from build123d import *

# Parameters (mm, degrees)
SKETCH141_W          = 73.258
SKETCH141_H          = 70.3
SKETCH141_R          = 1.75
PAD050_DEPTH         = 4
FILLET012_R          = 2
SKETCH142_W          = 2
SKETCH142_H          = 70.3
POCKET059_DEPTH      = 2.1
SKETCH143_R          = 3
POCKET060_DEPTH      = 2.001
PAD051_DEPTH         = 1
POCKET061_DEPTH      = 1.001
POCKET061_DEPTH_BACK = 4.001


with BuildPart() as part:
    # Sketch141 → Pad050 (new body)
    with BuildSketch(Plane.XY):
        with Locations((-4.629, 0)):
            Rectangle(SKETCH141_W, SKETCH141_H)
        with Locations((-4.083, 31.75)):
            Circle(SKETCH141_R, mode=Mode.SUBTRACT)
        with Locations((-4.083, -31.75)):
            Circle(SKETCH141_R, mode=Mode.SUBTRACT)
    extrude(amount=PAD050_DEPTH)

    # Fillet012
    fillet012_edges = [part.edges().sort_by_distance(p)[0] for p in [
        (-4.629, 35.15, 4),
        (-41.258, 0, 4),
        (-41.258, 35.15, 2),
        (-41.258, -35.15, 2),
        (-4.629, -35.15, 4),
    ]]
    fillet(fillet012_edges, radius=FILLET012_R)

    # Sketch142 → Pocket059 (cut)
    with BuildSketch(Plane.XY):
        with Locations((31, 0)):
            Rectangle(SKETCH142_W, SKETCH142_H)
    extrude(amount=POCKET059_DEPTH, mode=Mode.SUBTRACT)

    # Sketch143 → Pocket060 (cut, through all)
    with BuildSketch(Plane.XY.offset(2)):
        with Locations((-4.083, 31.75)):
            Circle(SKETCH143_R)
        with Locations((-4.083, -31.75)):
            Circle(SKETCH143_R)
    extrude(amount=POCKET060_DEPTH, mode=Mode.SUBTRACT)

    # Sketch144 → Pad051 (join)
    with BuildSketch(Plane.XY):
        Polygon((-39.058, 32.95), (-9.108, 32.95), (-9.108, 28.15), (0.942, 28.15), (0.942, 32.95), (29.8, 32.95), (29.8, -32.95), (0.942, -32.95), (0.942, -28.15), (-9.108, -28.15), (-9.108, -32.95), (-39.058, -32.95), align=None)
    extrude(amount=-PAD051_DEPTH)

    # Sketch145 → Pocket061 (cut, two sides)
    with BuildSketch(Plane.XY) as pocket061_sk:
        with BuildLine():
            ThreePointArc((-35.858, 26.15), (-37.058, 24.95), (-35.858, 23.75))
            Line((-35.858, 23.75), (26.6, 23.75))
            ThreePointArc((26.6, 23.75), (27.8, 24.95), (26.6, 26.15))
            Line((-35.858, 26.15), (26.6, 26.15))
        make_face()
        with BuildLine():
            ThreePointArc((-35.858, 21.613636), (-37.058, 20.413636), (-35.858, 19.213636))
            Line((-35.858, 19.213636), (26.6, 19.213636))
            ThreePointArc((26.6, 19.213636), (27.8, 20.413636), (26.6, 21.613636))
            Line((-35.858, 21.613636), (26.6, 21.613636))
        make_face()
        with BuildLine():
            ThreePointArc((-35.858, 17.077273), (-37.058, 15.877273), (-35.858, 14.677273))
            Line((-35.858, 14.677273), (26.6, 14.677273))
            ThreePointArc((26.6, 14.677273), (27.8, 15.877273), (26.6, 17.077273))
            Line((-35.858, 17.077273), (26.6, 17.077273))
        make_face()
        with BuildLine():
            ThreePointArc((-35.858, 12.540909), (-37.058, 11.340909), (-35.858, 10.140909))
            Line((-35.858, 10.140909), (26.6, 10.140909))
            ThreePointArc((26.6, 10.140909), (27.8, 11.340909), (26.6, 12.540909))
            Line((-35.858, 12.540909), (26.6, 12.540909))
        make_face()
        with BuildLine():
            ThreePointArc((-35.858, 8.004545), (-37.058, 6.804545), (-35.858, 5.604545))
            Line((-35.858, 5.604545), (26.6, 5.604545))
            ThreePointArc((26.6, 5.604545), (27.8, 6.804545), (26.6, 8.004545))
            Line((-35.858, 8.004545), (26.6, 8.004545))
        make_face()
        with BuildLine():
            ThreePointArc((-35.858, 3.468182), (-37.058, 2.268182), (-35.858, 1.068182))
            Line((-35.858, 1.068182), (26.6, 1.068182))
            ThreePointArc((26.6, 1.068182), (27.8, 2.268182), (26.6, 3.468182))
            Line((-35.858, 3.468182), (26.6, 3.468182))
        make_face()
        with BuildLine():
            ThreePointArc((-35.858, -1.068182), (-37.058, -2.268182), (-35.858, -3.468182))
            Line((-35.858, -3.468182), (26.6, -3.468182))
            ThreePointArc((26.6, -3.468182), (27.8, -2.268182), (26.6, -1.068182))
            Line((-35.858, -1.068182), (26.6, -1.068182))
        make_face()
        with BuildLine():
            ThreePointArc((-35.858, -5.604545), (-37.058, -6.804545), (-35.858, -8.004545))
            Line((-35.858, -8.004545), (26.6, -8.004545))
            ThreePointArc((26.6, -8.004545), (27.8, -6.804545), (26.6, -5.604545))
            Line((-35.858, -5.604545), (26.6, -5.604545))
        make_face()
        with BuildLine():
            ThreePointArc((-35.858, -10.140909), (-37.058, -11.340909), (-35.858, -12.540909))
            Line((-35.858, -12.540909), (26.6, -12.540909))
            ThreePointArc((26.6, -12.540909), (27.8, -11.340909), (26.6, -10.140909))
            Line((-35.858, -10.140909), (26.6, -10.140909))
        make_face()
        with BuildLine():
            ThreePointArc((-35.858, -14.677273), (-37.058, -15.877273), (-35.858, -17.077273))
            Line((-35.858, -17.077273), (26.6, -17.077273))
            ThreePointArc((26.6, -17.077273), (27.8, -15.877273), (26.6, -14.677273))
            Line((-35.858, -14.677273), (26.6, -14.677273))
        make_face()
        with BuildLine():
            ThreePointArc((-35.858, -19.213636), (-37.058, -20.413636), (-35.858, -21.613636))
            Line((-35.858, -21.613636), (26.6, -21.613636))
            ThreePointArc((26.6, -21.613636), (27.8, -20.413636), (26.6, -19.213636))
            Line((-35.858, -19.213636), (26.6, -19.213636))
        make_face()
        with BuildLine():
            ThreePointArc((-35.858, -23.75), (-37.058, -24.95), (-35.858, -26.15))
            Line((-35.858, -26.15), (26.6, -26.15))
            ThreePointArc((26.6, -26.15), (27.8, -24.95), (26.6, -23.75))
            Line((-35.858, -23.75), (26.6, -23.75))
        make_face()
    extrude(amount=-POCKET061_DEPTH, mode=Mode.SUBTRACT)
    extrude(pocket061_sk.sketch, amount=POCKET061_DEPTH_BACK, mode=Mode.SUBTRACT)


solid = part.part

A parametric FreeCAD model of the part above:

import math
import FreeCAD as App
import Part
import Sketcher


def edges_at(feature, points):
    """Names of the edges that pass closest to the given points."""
    edges = feature.Shape.Edges
    near = lambda p: min(range(len(edges)), key=lambda i: edges[i].distToShape(Part.Vertex(*p))[0])
    return sorted({f"Edge{near(p) + 1}" for p in points})

doc = App.newDocument("Part")
body = doc.addObject("PartDesign::Body", "Body")

sketch1 = doc.addObject("Sketcher::SketchObject", "Sketch")
body.addObject(sketch1)
sketch1.AttachmentSupport = (doc.XY_Plane, [""])
sketch1.MapMode = "FlatFace"
sketch1.addGeometry([
    Part.LineSegment(App.Vector(-41.3, 35.1, 0), App.Vector(-41.3, -35.1, 0)),
    Part.LineSegment(App.Vector(-41.3, -35.1, 0), App.Vector(32, -35.1, 0)),
    Part.LineSegment(App.Vector(32, -35.1, 0), App.Vector(32, 35.1, 0)),
    Part.LineSegment(App.Vector(32, 35.1, 0), App.Vector(-41.3, 35.1, 0)),
    Part.Circle(App.Vector(-4.1, -31.8, 0), App.Vector(0, 0, 1), 1.8),
    Part.Circle(App.Vector(-4.1, 31.8, 0), App.Vector(0, 0, 1), 1.8),
], False)
sketch1.addConstraint([
    Sketcher.Constraint("Coincident", 0, 2, 1, 1),
    Sketcher.Constraint("Coincident", 1, 2, 2, 1),
    Sketcher.Constraint("Coincident", 2, 2, 3, 1),
    Sketcher.Constraint("Coincident", 3, 2, 0, 1),
    Sketcher.Constraint("Vertical", 0),
    Sketcher.Constraint("Horizontal", 1),
    Sketcher.Constraint("Vertical", 2),
    Sketcher.Constraint("Horizontal", 3),
    Sketcher.Constraint("Equal", 4, 5),
    Sketcher.Constraint("Symmetric", 4, 3, 5, 3, -1),
    Sketcher.Constraint("Diameter", 4, 3.5),
    Sketcher.Constraint("DistanceY", 0, 2, 0, 1, 70.3),
    Sketcher.Constraint("DistanceX", -1, 1, 1, 2, 32.0),
    Sketcher.Constraint("DistanceY", 4, 3, 5, 3, 63.5),
    Sketcher.Constraint("DistanceY", 0, 2, 4, 3, 3.4),
    Sketcher.Constraint("DistanceX", 1, 1, 1, 2, 73.258),
    Sketcher.Constraint("DistanceX", 4, 3, -1, 1, 4.083),
])
pad1 = doc.addObject("PartDesign::Pad", "Pad")
body.addObject(pad1)
pad1.Profile = sketch1
pad1.Length = 4
doc.recompute()

fillet = doc.addObject("PartDesign::Fillet", "Fillet")
body.addObject(fillet)
fillet.Base = (pad1, edges_at(pad1, [
    (-4.629, 35.15, 4),
    (-41.258, 0, 4),
    (-41.258, 35.15, 2),
    (-41.258, -35.15, 2),
    (-4.629, -35.15, 4),
]))
fillet.Radius = 2

sketch2 = doc.addObject("Sketcher::SketchObject", "Sketch001")
body.addObject(sketch2)
sketch2.AttachmentSupport = (doc.XY_Plane, [""])
sketch2.MapMode = "FlatFace"
sketch2.addGeometry([
    Part.LineSegment(App.Vector(30, 35.1, 0), App.Vector(30, -35.1, 0)),
    Part.LineSegment(App.Vector(30, -35.1, 0), App.Vector(32, -35.1, 0)),
    Part.LineSegment(App.Vector(32, -35.1, 0), App.Vector(32, 35.1, 0)),
    Part.LineSegment(App.Vector(32, 35.1, 0), App.Vector(30, 35.1, 0)),
], False)
sketch2.addConstraint([
    Sketcher.Constraint("Coincident", 0, 2, 1, 1),
    Sketcher.Constraint("Coincident", 1, 2, 2, 1),
    Sketcher.Constraint("Coincident", 2, 2, 3, 1),
    Sketcher.Constraint("Coincident", 3, 2, 0, 1),
    Sketcher.Constraint("Vertical", 0),
    Sketcher.Constraint("Horizontal", 1),
    Sketcher.Constraint("Vertical", 2),
    Sketcher.Constraint("Horizontal", 3),
    Sketcher.Constraint("DistanceX", 1, 1, 1, 2, 2.0),
    Sketcher.Constraint("DistanceY", 0, 2, 0, 1, 70.3),
    Sketcher.Constraint("DistanceX", -1, 1, 0, 2, 30.0),
    Sketcher.Constraint("DistanceY", 0, 2, -1, 1, 35.15),
])
pocket1 = doc.addObject("PartDesign::Pocket", "Pocket")
body.addObject(pocket1)
pocket1.Profile = sketch2
pocket1.Length = 2.1
pocket1.Reversed = True

sketch3 = doc.addObject("Sketcher::SketchObject", "Sketch002")
body.addObject(sketch3)
sketch3.AttachmentSupport = (doc.XY_Plane, [""])
sketch3.MapMode = "FlatFace"
sketch3.AttachmentOffset = App.Placement(App.Vector(0, 0, 2), App.Rotation())
sketch3.addGeometry([
    Part.Circle(App.Vector(-4.1, 31.8, 0), App.Vector(0, 0, 1), 3),
    Part.Circle(App.Vector(-4.1, -31.8, 0), App.Vector(0, 0, 1), 3),
], False)
sketch3.addConstraint([
    Sketcher.Constraint("Equal", 0, 1),
    Sketcher.Constraint("Symmetric", 0, 3, 1, 3, -1),
    Sketcher.Constraint("Diameter", 0, 6.0),
    Sketcher.Constraint("DistanceY", 1, 3, 0, 3, 63.5),
    Sketcher.Constraint("DistanceX", 0, 3, -1, 1, 4.083),
])
pocket2 = doc.addObject("PartDesign::Pocket", "Pocket001")
body.addObject(pocket2)
pocket2.Profile = sketch3
pocket2.Type = "ThroughAll"
pocket2.Reversed = True

sketch4 = doc.addObject("Sketcher::SketchObject", "Sketch003")
body.addObject(sketch4)
sketch4.AttachmentSupport = (doc.XY_Plane, [""])
sketch4.MapMode = "FlatFace"
sketch4.addGeometry([
    Part.LineSegment(App.Vector(-9.1, 33, 0), App.Vector(-39.1, 33, 0)),
    Part.LineSegment(App.Vector(-39.1, 33, 0), App.Vector(-39.1, -33, 0)),
    Part.LineSegment(App.Vector(-39.1, -33, 0), App.Vector(-9.1, -33, 0)),
    Part.LineSegment(App.Vector(-9.1, -33, 0), App.Vector(-9.1, -28.1, 0)),
    Part.LineSegment(App.Vector(-9.1, -28.1, 0), App.Vector(0.9, -28.1, 0)),
    Part.LineSegment(App.Vector(0.9, -28.1, 0), App.Vector(0.9, -33, 0)),
    Part.LineSegment(App.Vector(0.9, -33, 0), App.Vector(29.8, -33, 0)),
    Part.LineSegment(App.Vector(29.8, -33, 0), App.Vector(29.8, 33, 0)),
    Part.LineSegment(App.Vector(29.8, 33, 0), App.Vector(0.9, 33, 0)),
    Part.LineSegment(App.Vector(0.9, 33, 0), App.Vector(0.9, 28.1, 0)),
    Part.LineSegment(App.Vector(0.9, 28.1, 0), App.Vector(-9.1, 28.1, 0)),
    Part.LineSegment(App.Vector(-9.1, 28.1, 0), App.Vector(-9.1, 33, 0)),
], False)
sketch4.addConstraint([
    Sketcher.Constraint("Coincident", 0, 2, 1, 1),
    Sketcher.Constraint("Coincident", 1, 2, 2, 1),
    Sketcher.Constraint("Coincident", 2, 2, 3, 1),
    Sketcher.Constraint("Coincident", 3, 2, 4, 1),
    Sketcher.Constraint("Coincident", 4, 2, 5, 1),
    Sketcher.Constraint("Coincident", 5, 2, 6, 1),
    Sketcher.Constraint("Coincident", 6, 2, 7, 1),
    Sketcher.Constraint("Coincident", 7, 2, 8, 1),
    Sketcher.Constraint("Coincident", 8, 2, 9, 1),
    Sketcher.Constraint("Coincident", 9, 2, 10, 1),
    Sketcher.Constraint("Coincident", 10, 2, 11, 1),
    Sketcher.Constraint("Coincident", 11, 2, 0, 1),
    Sketcher.Constraint("Horizontal", 0),
    Sketcher.Constraint("Vertical", 1),
    Sketcher.Constraint("Horizontal", 2),
    Sketcher.Constraint("Vertical", 3),
    Sketcher.Constraint("Horizontal", 4),
    Sketcher.Constraint("Vertical", 5),
    Sketcher.Constraint("Horizontal", 6),
    Sketcher.Constraint("Vertical", 7),
    Sketcher.Constraint("Horizontal", 8),
    Sketcher.Constraint("Vertical", 9),
    Sketcher.Constraint("Horizontal", 10),
    Sketcher.Constraint("Vertical", 11),
    Sketcher.Constraint("Symmetric", 5, 2, 8, 2, -1),
    Sketcher.Constraint("Symmetric", 3, 2, 10, 2, -1),
    Sketcher.Constraint("Horizontal", 2, 2, 5, 2),
    Sketcher.Constraint("Horizontal", 0, 2, 7, 2),
    Sketcher.Constraint("DistanceY", 1, 2, 1, 1, 65.9),
    Sketcher.Constraint("DistanceY", 3, 1, 3, 2, 4.8),
    Sketcher.Constraint("DistanceX", 1, 2, 4, 2, 40.0),
    Sketcher.Constraint("DistanceX", 0, 2, 0, 1, 29.95),
    Sketcher.Constraint("DistanceX", -1, 1, 6, 2, 29.8),
    Sketcher.Constraint("DistanceX", 6, 1, 6, 2, 28.858),
])
pad2 = doc.addObject("PartDesign::Pad", "Pad001")
body.addObject(pad2)
pad2.Profile = sketch4
pad2.Length = 1
pad2.Reversed = True

sketch5 = doc.addObject("Sketcher::SketchObject", "Sketch004")
body.addObject(sketch5)
sketch5.AttachmentSupport = (doc.XY_Plane, [""])
sketch5.MapMode = "FlatFace"
sketch5.addGeometry([
    Part.ArcOfCircle(Part.Circle(App.Vector(-35.9, 24.9, 0), App.Vector(0, 0, 1), 1.2), math.radians(90), math.radians(270)),
    Part.LineSegment(App.Vector(-35.9, 23.8, 0), App.Vector(26.6, 23.8, 0)),
    Part.ArcOfCircle(Part.Circle(App.Vector(26.6, 24.9, 0), App.Vector(0, 0, 1), 1.2), math.radians(-90), math.radians(90)),
    Part.LineSegment(App.Vector(26.6, 26.1, 0), App.Vector(-35.9, 26.1, 0)),
    Part.ArcOfCircle(Part.Circle(App.Vector(-35.9, 20.4, 0), App.Vector(0, 0, 1), 1.2), math.radians(90), math.radians(270)),
    Part.LineSegment(App.Vector(-35.9, 19.2, 0), App.Vector(26.6, 19.2, 0)),
    Part.ArcOfCircle(Part.Circle(App.Vector(26.6, 20.4, 0), App.Vector(0, 0, 1), 1.2), math.radians(-90), math.radians(90)),
    Part.LineSegment(App.Vector(26.6, 21.6, 0), App.Vector(-35.9, 21.6, 0)),
    Part.ArcOfCircle(Part.Circle(App.Vector(-35.9, 15.9, 0), App.Vector(0, 0, 1), 1.2), math.radians(90), math.radians(270)),
    Part.LineSegment(App.Vector(-35.9, 14.7, 0), App.Vector(26.6, 14.7, 0)),
    Part.ArcOfCircle(Part.Circle(App.Vector(26.6, 15.9, 0), App.Vector(0, 0, 1), 1.2), math.radians(-90), math.radians(90)),
    Part.LineSegment(App.Vector(26.6, 17.1, 0), App.Vector(-35.9, 17.1, 0)),
    Part.ArcOfCircle(Part.Circle(App.Vector(-35.9, 11.3, 0), App.Vector(0, 0, 1), 1.2), math.radians(90), math.radians(270)),
    Part.LineSegment(App.Vector(-35.9, 10.1, 0), App.Vector(26.6, 10.1, 0)),
    Part.ArcOfCircle(Part.Circle(App.Vector(26.6, 11.3, 0), App.Vector(0, 0, 1), 1.2), math.radians(-90), math.radians(90)),
    Part.LineSegment(App.Vector(26.6, 12.5, 0), App.Vector(-35.9, 12.5, 0)),
    Part.ArcOfCircle(Part.Circle(App.Vector(-35.9, 6.8, 0), App.Vector(0, 0, 1), 1.2), math.radians(90), math.radians(270)),
    Part.LineSegment(App.Vector(-35.9, 5.6, 0), App.Vector(26.6, 5.6, 0)),
    Part.ArcOfCircle(Part.Circle(App.Vector(26.6, 6.8, 0), App.Vector(0, 0, 1), 1.2), math.radians(-90), math.radians(90)),
    Part.LineSegment(App.Vector(26.6, 8, 0), App.Vector(-35.9, 8, 0)),
    Part.ArcOfCircle(Part.Circle(App.Vector(-35.9, 2.3, 0), App.Vector(0, 0, 1), 1.2), math.radians(90), math.radians(270)),
    Part.LineSegment(App.Vector(-35.9, 1.1, 0), App.Vector(26.6, 1.1, 0)),
    Part.ArcOfCircle(Part.Circle(App.Vector(26.6, 2.3, 0), App.Vector(0, 0, 1), 1.2), math.radians(-90), math.radians(90)),
    Part.LineSegment(App.Vector(26.6, 3.5, 0), App.Vector(-35.9, 3.5, 0)),
    Part.ArcOfCircle(Part.Circle(App.Vector(-35.9, -2.3, 0), App.Vector(0, 0, 1), 1.2), math.radians(90), math.radians(270)),
    Part.LineSegment(App.Vector(-35.9, -3.5, 0), App.Vector(26.6, -3.5, 0)),
    Part.ArcOfCircle(Part.Circle(App.Vector(26.6, -2.3, 0), App.Vector(0, 0, 1), 1.2), math.radians(-90), math.radians(90)),
    Part.LineSegment(App.Vector(26.6, -1.1, 0), App.Vector(-35.9, -1.1, 0)),
    Part.ArcOfCircle(Part.Circle(App.Vector(-35.9, -6.8, 0), App.Vector(0, 0, 1), 1.2), math.radians(90), math.radians(270)),
    Part.LineSegment(App.Vector(-35.9, -8, 0), App.Vector(26.6, -8, 0)),
    Part.ArcOfCircle(Part.Circle(App.Vector(26.6, -6.8, 0), App.Vector(0, 0, 1), 1.2), math.radians(-90), math.radians(90)),
    Part.LineSegment(App.Vector(26.6, -5.6, 0), App.Vector(-35.9, -5.6, 0)),
    Part.ArcOfCircle(Part.Circle(App.Vector(-35.9, -11.3, 0), App.Vector(0, 0, 1), 1.2), math.radians(90), math.radians(270)),
    Part.LineSegment(App.Vector(-35.9, -12.5, 0), App.Vector(26.6, -12.5, 0)),
    Part.ArcOfCircle(Part.Circle(App.Vector(26.6, -11.3, 0), App.Vector(0, 0, 1), 1.2), math.radians(-90), math.radians(90)),
    Part.LineSegment(App.Vector(26.6, -10.1, 0), App.Vector(-35.9, -10.1, 0)),
    Part.ArcOfCircle(Part.Circle(App.Vector(-35.9, -15.9, 0), App.Vector(0, 0, 1), 1.2), math.radians(90), math.radians(270)),
    Part.LineSegment(App.Vector(-35.9, -17.1, 0), App.Vector(26.6, -17.1, 0)),
    Part.ArcOfCircle(Part.Circle(App.Vector(26.6, -15.9, 0), App.Vector(0, 0, 1), 1.2), math.radians(-90), math.radians(90)),
    Part.LineSegment(App.Vector(26.6, -14.7, 0), App.Vector(-35.9, -14.7, 0)),
    Part.ArcOfCircle(Part.Circle(App.Vector(-35.9, -20.4, 0), App.Vector(0, 0, 1), 1.2), math.radians(90), math.radians(270)),
    Part.LineSegment(App.Vector(-35.9, -21.6, 0), App.Vector(26.6, -21.6, 0)),
    Part.ArcOfCircle(Part.Circle(App.Vector(26.6, -20.4, 0), App.Vector(0, 0, 1), 1.2), math.radians(-90), math.radians(90)),
    Part.LineSegment(App.Vector(26.6, -19.2, 0), App.Vector(-35.9, -19.2, 0)),
    Part.ArcOfCircle(Part.Circle(App.Vector(-35.9, -24.9, 0), App.Vector(0, 0, 1), 1.2), math.radians(90), math.radians(270)),
    Part.LineSegment(App.Vector(-35.9, -26.1, 0), App.Vector(26.6, -26.1, 0)),
    Part.ArcOfCircle(Part.Circle(App.Vector(26.6, -24.9, 0), App.Vector(0, 0, 1), 1.2), math.radians(-90), math.radians(90)),
    Part.LineSegment(App.Vector(26.6, -23.8, 0), App.Vector(-35.9, -23.8, 0)),
], False)
sketch5.addConstraint([
    Sketcher.Constraint("Tangent", 0, 2, 1, 1),
    Sketcher.Constraint("Tangent", 1, 2, 2, 1),
    Sketcher.Constraint("Tangent", 2, 2, 3, 1),
    Sketcher.Constraint("Tangent", 3, 2, 0, 1),
    Sketcher.Constraint("Tangent", 4, 2, 5, 1),
    Sketcher.Constraint("Tangent", 5, 2, 6, 1),
    Sketcher.Constraint("Tangent", 6, 2, 7, 1),
    Sketcher.Constraint("Tangent", 7, 2, 4, 1),
    Sketcher.Constraint("Tangent", 8, 2, 9, 1),
    Sketcher.Constraint("Tangent", 9, 2, 10, 1),
    Sketcher.Constraint("Tangent", 10, 2, 11, 1),
    Sketcher.Constraint("Tangent", 11, 2, 8, 1),
    Sketcher.Constraint("Tangent", 12, 2, 13, 1),
    Sketcher.Constraint("Tangent", 13, 2, 14, 1),
    Sketcher.Constraint("Tangent", 14, 2, 15, 1),
    Sketcher.Constraint("Tangent", 15, 2, 12, 1),
    Sketcher.Constraint("Tangent", 16, 2, 17, 1),
    Sketcher.Constraint("Tangent", 17, 2, 18, 1),
    Sketcher.Constraint("Tangent", 18, 2, 19, 1),
    Sketcher.Constraint("Tangent", 19, 2, 16, 1),
    Sketcher.Constraint("Tangent", 20, 2, 21, 1),
    Sketcher.Constraint("Tangent", 21, 2, 22, 1),
    Sketcher.Constraint("Tangent", 22, 2, 23, 1),
    Sketcher.Constraint("Tangent", 23, 2, 20, 1),
    Sketcher.Constraint("Tangent", 24, 2, 25, 1),
    Sketcher.Constraint("Tangent", 25, 2, 26, 1),
    Sketcher.Constraint("Tangent", 26, 2, 27, 1),
    Sketcher.Constraint("Tangent", 27, 2, 24, 1),
    Sketcher.Constraint("Tangent", 28, 2, 29, 1),
    Sketcher.Constraint("Tangent", 29, 2, 30, 1),
    Sketcher.Constraint("Tangent", 30, 2, 31, 1),
    Sketcher.Constraint("Tangent", 31, 2, 28, 1),
    Sketcher.Constraint("Tangent", 32, 2, 33, 1),
    Sketcher.Constraint("Tangent", 33, 2, 34, 1),
    Sketcher.Constraint("Tangent", 34, 2, 35, 1),
    Sketcher.Constraint("Tangent", 35, 2, 32, 1),
    Sketcher.Constraint("Tangent", 36, 2, 37, 1),
    Sketcher.Constraint("Tangent", 37, 2, 38, 1),
    Sketcher.Constraint("Tangent", 38, 2, 39, 1),
    Sketcher.Constraint("Tangent", 39, 2, 36, 1),
    Sketcher.Constraint("Tangent", 40, 2, 41, 1),
    Sketcher.Constraint("Tangent", 41, 2, 42, 1),
    Sketcher.Constraint("Tangent", 42, 2, 43, 1),
    Sketcher.Constraint("Tangent", 43, 2, 40, 1),
    Sketcher.Constraint("Tangent", 44, 2, 45, 1),
    Sketcher.Constraint("Tangent", 45, 2, 46, 1),
    Sketcher.Constraint("Tangent", 46, 2, 47, 1),
    Sketcher.Constraint("Tangent", 47, 2, 44, 1),
    Sketcher.Constraint("Horizontal", 1),
    Sketcher.Constraint("Horizontal", 3),
    Sketcher.Constraint("Horizontal", 5),
    Sketcher.Constraint("Horizontal", 7),
    Sketcher.Constraint("Horizontal", 9),
    Sketcher.Constraint("Horizontal", 11),
    Sketcher.Constraint("Horizontal", 13),
    Sketcher.Constraint("Horizontal", 15),
    Sketcher.Constraint("Horizontal", 17),
    Sketcher.Constraint("Horizontal", 19),
    Sketcher.Constraint("Horizontal", 21),
    Sketcher.Constraint("Horizontal", 23),
    Sketcher.Constraint("Horizontal", 25),
    Sketcher.Constraint("Horizontal", 27),
    Sketcher.Constraint("Horizontal", 29),
    Sketcher.Constraint("Horizontal", 31),
    Sketcher.Constraint("Horizontal", 33),
    Sketcher.Constraint("Horizontal", 35),
    Sketcher.Constraint("Horizontal", 37),
    Sketcher.Constraint("Horizontal", 39),
    Sketcher.Constraint("Horizontal", 41),
    Sketcher.Constraint("Horizontal", 43),
    Sketcher.Constraint("Horizontal", 45),
    Sketcher.Constraint("Horizontal", 47),
    Sketcher.Constraint("Equal", 2, 4),
    Sketcher.Constraint("Equal", 6, 8),
    Sketcher.Constraint("Equal", 10, 12),
    Sketcher.Constraint("Equal", 14, 16),
    Sketcher.Constraint("Equal", 18, 20),
    Sketcher.Constraint("Equal", 22, 24),
    Sketcher.Constraint("Equal", 26, 28),
    Sketcher.Constraint("Equal", 30, 32),
    Sketcher.Constraint("Equal", 34, 36),
    Sketcher.Constraint("Equal", 38, 40),
    Sketcher.Constraint("Equal", 42, 44),
    Sketcher.Constraint("Symmetric", 20, 3, 24, 3, -1),
    Sketcher.Constraint("Symmetric", 16, 3, 28, 3, -1),
    Sketcher.Constraint("Symmetric", 12, 3, 32, 3, -1),
    Sketcher.Constraint("Symmetric", 8, 3, 36, 3, -1),
    Sketcher.Constraint("Symmetric", 4, 3, 40, 3, -1),
    Sketcher.Constraint("Symmetric", 0, 3, 44, 3, -1),
    Sketcher.Constraint("Vertical", 0, 3, 4, 3),
    Sketcher.Constraint("Vertical", 2, 3, 6, 3),
    Sketcher.Constraint("Vertical", 4, 3, 8, 3),
    Sketcher.Constraint("Vertical", 6, 3, 10, 3),
    Sketcher.Constraint("Vertical", 8, 3, 12, 3),
    Sketcher.Constraint("Vertical", 10, 3, 14, 3),
    Sketcher.Constraint("Vertical", 12, 3, 16, 3),
    Sketcher.Constraint("Vertical", 14, 3, 18, 3),
    Sketcher.Constraint("Vertical", 16, 3, 20, 3),
    Sketcher.Constraint("Vertical", 18, 3, 22, 3),
    Sketcher.Constraint("Vertical", 22, 3, 26, 3),
    Sketcher.Constraint("Vertical", 26, 3, 30, 3),
    Sketcher.Constraint("Vertical", 30, 3, 34, 3),
    Sketcher.Constraint("Vertical", 34, 3, 38, 3),
    Sketcher.Constraint("Vertical", 38, 3, 42, 3),
    Sketcher.Constraint("Vertical", 42, 3, 46, 3),
    Sketcher.Constraint("Radius", 0, 1.2),
    Sketcher.Constraint("DistanceX", -1, 1, 2, 3, 26.6),
    Sketcher.Constraint("DistanceX", 1, 1, 1, 2, 62.458),
    Sketcher.Constraint("DistanceY", -1, 1, 0, 3, 24.95),
    Sketcher.Constraint("DistanceY", -1, 1, 12, 3, 11.340909),
    Sketcher.Constraint("DistanceY", -1, 1, 20, 3, 2.268182),
    Sketcher.Constraint("DistanceY", -1, 1, 4, 3, 20.413636),
    Sketcher.Constraint("DistanceY", -1, 1, 8, 3, 15.877273),
    Sketcher.Constraint("DistanceY", -1, 1, 16, 3, 6.804545),
])
pocket3 = doc.addObject("PartDesign::Pocket", "Pocket002")
body.addObject(pocket3)
pocket3.Profile = sketch5
pocket3.Type = "ThroughAll"
pocket3.Midplane = True

doc.recompute()
